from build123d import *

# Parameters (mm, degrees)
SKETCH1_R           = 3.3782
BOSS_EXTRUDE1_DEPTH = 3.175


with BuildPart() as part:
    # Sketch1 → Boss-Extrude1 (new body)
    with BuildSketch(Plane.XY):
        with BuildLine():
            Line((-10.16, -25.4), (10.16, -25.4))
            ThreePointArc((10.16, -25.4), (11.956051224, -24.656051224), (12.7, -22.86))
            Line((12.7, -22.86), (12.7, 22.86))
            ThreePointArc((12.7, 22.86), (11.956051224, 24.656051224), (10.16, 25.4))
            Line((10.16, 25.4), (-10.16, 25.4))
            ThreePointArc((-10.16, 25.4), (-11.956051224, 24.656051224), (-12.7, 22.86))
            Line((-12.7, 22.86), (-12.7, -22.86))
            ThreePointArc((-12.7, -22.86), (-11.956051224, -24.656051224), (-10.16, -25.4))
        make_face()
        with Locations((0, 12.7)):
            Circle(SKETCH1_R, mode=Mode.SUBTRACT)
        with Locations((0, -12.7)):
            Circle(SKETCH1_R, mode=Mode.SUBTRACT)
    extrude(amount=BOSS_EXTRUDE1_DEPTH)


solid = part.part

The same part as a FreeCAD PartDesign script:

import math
import FreeCAD as App
import Part
import Sketcher
from FreeCAD import Vector
Q = App.Units.Quantity

doc = App.newDocument("Part")
params = doc.addObject("Spreadsheet::Sheet", "Params")
for row, (alias, value) in enumerate([
    ("sketch1_radius", "0.1 in"),
    ("sketch1_diameter", "0.266 in"),
    ("sketch1_width", "0.8 in"),
    ("sketch1_height", "1.8 in"),
    ("pad1_length", "0.125 in"),
], start=1):
    params.set(f"A{row}", alias)
    params.set(f"B{row}", "=" + value)
    params.setAlias(f"B{row}", alias)

body = doc.addObject("PartDesign::Body", "Body")

sketch1 = doc.addObject("Sketcher::SketchObject", "Sketch")
body.addObject(sketch1)
sketch1.AttachmentSupport = (doc.XY_Plane, [""])
sketch1.MapMode = "FlatFace"
sketch1.addGeometry([
    Part.LineSegment(Vector(-10.2, -25.4, 0), Vector(10.2, -25.4, 0)),
    Part.ArcOfCircle(Part.Circle(Vector(10.2, -22.9, 0), Vector(0, 0, 1), 2.5), math.radians(-90), math.radians(0)),
    Part.LineSegment(Vector(12.7, -22.9, 0), Vector(12.7, 22.9, 0)),
    Part.ArcOfCircle(Part.Circle(Vector(10.2, 22.9, 0), Vector(0, 0, 1), 2.5), math.radians(0), math.radians(90)),
    Part.LineSegment(Vector(10.2, 25.4, 0), Vector(-10.2, 25.4, 0)),
    Part.ArcOfCircle(Part.Circle(Vector(-10.2, 22.9, 0), Vector(0, 0, 1), 2.5), math.radians(90), math.radians(180)),
    Part.LineSegment(Vector(-12.7, 22.9, 0), Vector(-12.7, -22.9, 0)),
    Part.ArcOfCircle(Part.Circle(Vector(-10.2, -22.9, 0), Vector(0, 0, 1), 2.5), math.radians(-180), math.radians(-90)),
    Part.Circle(Vector(0, -12.7, 0), Vector(0, 0, 1), 3.4),
    Part.Circle(Vector(0, 12.7, 0), Vector(0, 0, 1), 3.4),
], False)
sketch1.addConstraint([
    Sketcher.Constraint("Tangent", 0, 2, 1, 1),
    Sketcher.Constraint("Tangent", 1, 2, 2, 1),
    Sketcher.Constraint("Tangent", 2, 2, 3, 1),
    Sketcher.Constraint("Tangent", 3, 2, 4, 1),
    Sketcher.Constraint("Tangent", 4, 2, 5, 1),
    Sketcher.Constraint("Tangent", 5, 2, 6, 1),
    Sketcher.Constraint("Tangent", 6, 2, 7, 1),
    Sketcher.Constraint("Tangent", 7, 2, 0, 1),
    Sketcher.Constraint("Horizontal", 0),
    Sketcher.Constraint("Vertical", 2),
    Sketcher.Constraint("Horizontal", 4),
    Sketcher.Constraint("Vertical", 6),
    Sketcher.Constraint("Equal", 1, 3),
    Sketcher.Constraint("Equal", 3, 5),
    Sketcher.Constraint("Equal", 5, 7),
    Sketcher.Constraint("Equal", 8, 9),
    Sketcher.Constraint("Symmetric", 1, 3, 5, 3, -1, 1),
    Sketcher.Constraint("Symmetric", 8, 3, 9, 3, -1, 1),
    Sketcher.Constraint("PointOnObject", 8, 3, -2),
    Sketcher.Constraint("Radius", 1, Q("0.1 in")),
    Sketcher.Constraint("Diameter", 8, Q("0.266 in")),
    Sketcher.Constraint("DistanceX", 0, 1, 0, 2, Q("0.8 in")),
    Sketcher.Constraint("DistanceY", 2, 1, 2, 2, Q("1.8 in")),
    Sketcher.Constraint("DistanceY", 8, 3, 9, 3, Q("1 in")),
])
sketch1.setExpression("Constraints[19]", "Params.sketch1_radius")
sketch1.setExpression("Constraints[20]", "Params.sketch1_diameter")
sketch1.setExpression("Constraints[21]", "Params.sketch1_width")
sketch1.setExpression("Constraints[22]", "Params.sketch1_height")
pad1 = doc.addObject("PartDesign::Pad", "Pad")
body.addObject(pad1)
pad1.Profile = sketch1
pad1.setExpression("Length", "Params.pad1_length")

doc.recompute()
